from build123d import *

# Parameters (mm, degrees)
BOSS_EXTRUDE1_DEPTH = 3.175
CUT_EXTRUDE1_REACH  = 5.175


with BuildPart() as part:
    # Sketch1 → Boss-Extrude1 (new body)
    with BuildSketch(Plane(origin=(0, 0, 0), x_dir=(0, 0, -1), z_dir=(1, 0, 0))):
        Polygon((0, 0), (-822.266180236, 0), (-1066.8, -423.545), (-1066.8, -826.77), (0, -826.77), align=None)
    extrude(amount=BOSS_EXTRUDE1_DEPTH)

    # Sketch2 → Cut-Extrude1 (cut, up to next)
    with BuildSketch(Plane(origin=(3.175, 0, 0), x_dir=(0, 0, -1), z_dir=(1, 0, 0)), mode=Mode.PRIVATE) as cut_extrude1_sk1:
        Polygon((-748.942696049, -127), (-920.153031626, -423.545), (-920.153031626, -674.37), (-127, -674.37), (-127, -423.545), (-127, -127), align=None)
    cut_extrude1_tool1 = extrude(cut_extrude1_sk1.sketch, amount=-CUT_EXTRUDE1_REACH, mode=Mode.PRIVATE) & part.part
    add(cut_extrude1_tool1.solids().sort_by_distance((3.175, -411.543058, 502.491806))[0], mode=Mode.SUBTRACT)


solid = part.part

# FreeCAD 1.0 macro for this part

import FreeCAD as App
import Part
import Sketcher
Q = App.Units.Quantity

doc = App.newDocument("Part")
body = doc.addObject("PartDesign::Body", "Body")

# Sketch on YZ plane
sketch1 = doc.addObject("Sketcher::SketchObject", "Sketch")
body.addObject(sketch1)
sketch1.AttachmentSupport = (doc.YZ_Plane, [""])
sketch1.MapMode = "FlatFace"
sketch1.addGeometry(Part.LineSegment(App.Vector(0, 0, 0), App.Vector(0, 822, 0)), False)
sketch1.addGeometry(Part.LineSegment(App.Vector(0, 822, 0), App.Vector(-424, 1067, 0)), False)
sketch1.addGeometry(Part.LineSegment(App.Vector(-424, 1067, 0), App.Vector(-827, 1067, 0)), False)
sketch1.addGeometry(Part.LineSegment(App.Vector(-827, 1067, 0), App.Vector(-827, 0, 0)), False)
sketch1.addGeometry(Part.LineSegment(App.Vector(-827, 0, 0), App.Vector(0, 0, 0)), False)
sketch1.addConstraint(Sketcher.Constraint("Coincident", 0, 2, 1, 1))
sketch1.addConstraint(Sketcher.Constraint("Coincident", 1, 2, 2, 1))
sketch1.addConstraint(Sketcher.Constraint("Coincident", 2, 2, 3, 1))
sketch1.addConstraint(Sketcher.Constraint("Coincident", 3, 2, 4, 1))
sketch1.addConstraint(Sketcher.Constraint("Coincident", 4, 2, 0, 1))
sketch1.addConstraint(Sketcher.Constraint("Vertical", 0))
sketch1.addConstraint(Sketcher.Constraint("Horizontal", 2))
sketch1.addConstraint(Sketcher.Constraint("Vertical", 3))
sketch1.addConstraint(Sketcher.Constraint("Horizontal", 4))
sketch1.addConstraint(Sketcher.Constraint("Coincident", 4, 2, -1, 1))
sketch1.addConstraint(Sketcher.Constraint("DistanceY", 3, 2, 3, 1, Q("42 in")))
sketch1.addConstraint(Sketcher.Constraint("Angle", 1, Q("150 deg")))
sketch1.addConstraint(Sketcher.Constraint("DistanceX", 4, 1, 4, 2, Q("32.55 in")))
sketch1.addConstraint(Sketcher.Constraint("DistanceX", 2, 2, 2, 1, Q("15.875 in")))
pad1 = doc.addObject("PartDesign::Pad", "Pad")
body.addObject(pad1)
pad1.Profile = sketch1
pad1.Length = Q("0.125 in")

# Sketch on YZ plane
sketch2 = doc.addObject("Sketcher::SketchObject", "Sketch001")
body.addObject(sketch2)
sketch2.AttachmentSupport = (doc.YZ_Plane, [""])
sketch2.MapMode = "FlatFace"
sketch2.AttachmentOffset = App.Placement(App.Vector(0, 0, 0.125 * 25.4), App.Rotation())
sketch2.addGeometry(Part.LineSegment(App.Vector(-127, 749, 0), App.Vector(-424, 920, 0)), False)
sketch2.addGeometry(Part.LineSegment(App.Vector(-424, 920, 0), App.Vector(-674, 920, 0)), False)
sketch2.addGeometry(Part.LineSegment(App.Vector(-674, 920, 0), App.Vector(-674, 127, 0)), False)
sketch2.addGeometry(Part.LineSegment(App.Vector(-674, 127, 0), App.Vector(-127, 127, 0)), False)
sketch2.addGeometry(Part.LineSegment(App.Vector(-127, 127, 0), App.Vector(-127, 749, 0)), False)
sketch2.addConstraint(Sketcher.Constraint("Coincident", 0, 2, 1, 1))
sketch2.addConstraint(Sketcher.Constraint("Coincident", 1, 2, 2, 1))
sketch2.addConstraint(Sketcher.Constraint("Coincident", 2, 2, 3, 1))
sketch2.addConstraint(Sketcher.Constraint("Coincident", 3, 2, 4, 1))
sketch2.addConstraint(Sketcher.Constraint("Coincident", 4, 2, 0, 1))
sketch2.addConstraint(Sketcher.Constraint("Horizontal", 1))
sketch2.addConstraint(Sketcher.Constraint("Vertical", 2))
sketch2.addConstraint(Sketcher.Constraint("Horizontal", 3))
sketch2.addConstraint(Sketcher.Constraint("Vertical", 4))
sketch2.addConstraint(Sketcher.Constraint("DistanceY", -1, 1, 2, 2, Q("5 in")))
sketch2.addConstraint(Sketcher.Constraint("DistanceX", 3, 2, -1, 1, Q("5 in")))
sketch2.addConstraint(Sketcher.Constraint("Angle", 0, Q("150 deg")))
sketch2.addConstraint(Sketcher.Constraint("DistanceX", 3, 1, 3, 2, Q("21.55 in")))
sketch2.addConstraint(Sketcher.Constraint("DistanceX", 1, 2, 1, 1, Q("9.875 in")))
sketch2.addConstraint(Sketcher.Constraint("DistanceY", 2, 2, 2, 1, Q("793.153032 mm")))
pocket1 = doc.addObject("PartDesign::Pocket", "Pocket")
body.addObject(pocket1)
pocket1.Profile = sketch2
pocket1.Type = "UpToFirst"

doc.recompute()
